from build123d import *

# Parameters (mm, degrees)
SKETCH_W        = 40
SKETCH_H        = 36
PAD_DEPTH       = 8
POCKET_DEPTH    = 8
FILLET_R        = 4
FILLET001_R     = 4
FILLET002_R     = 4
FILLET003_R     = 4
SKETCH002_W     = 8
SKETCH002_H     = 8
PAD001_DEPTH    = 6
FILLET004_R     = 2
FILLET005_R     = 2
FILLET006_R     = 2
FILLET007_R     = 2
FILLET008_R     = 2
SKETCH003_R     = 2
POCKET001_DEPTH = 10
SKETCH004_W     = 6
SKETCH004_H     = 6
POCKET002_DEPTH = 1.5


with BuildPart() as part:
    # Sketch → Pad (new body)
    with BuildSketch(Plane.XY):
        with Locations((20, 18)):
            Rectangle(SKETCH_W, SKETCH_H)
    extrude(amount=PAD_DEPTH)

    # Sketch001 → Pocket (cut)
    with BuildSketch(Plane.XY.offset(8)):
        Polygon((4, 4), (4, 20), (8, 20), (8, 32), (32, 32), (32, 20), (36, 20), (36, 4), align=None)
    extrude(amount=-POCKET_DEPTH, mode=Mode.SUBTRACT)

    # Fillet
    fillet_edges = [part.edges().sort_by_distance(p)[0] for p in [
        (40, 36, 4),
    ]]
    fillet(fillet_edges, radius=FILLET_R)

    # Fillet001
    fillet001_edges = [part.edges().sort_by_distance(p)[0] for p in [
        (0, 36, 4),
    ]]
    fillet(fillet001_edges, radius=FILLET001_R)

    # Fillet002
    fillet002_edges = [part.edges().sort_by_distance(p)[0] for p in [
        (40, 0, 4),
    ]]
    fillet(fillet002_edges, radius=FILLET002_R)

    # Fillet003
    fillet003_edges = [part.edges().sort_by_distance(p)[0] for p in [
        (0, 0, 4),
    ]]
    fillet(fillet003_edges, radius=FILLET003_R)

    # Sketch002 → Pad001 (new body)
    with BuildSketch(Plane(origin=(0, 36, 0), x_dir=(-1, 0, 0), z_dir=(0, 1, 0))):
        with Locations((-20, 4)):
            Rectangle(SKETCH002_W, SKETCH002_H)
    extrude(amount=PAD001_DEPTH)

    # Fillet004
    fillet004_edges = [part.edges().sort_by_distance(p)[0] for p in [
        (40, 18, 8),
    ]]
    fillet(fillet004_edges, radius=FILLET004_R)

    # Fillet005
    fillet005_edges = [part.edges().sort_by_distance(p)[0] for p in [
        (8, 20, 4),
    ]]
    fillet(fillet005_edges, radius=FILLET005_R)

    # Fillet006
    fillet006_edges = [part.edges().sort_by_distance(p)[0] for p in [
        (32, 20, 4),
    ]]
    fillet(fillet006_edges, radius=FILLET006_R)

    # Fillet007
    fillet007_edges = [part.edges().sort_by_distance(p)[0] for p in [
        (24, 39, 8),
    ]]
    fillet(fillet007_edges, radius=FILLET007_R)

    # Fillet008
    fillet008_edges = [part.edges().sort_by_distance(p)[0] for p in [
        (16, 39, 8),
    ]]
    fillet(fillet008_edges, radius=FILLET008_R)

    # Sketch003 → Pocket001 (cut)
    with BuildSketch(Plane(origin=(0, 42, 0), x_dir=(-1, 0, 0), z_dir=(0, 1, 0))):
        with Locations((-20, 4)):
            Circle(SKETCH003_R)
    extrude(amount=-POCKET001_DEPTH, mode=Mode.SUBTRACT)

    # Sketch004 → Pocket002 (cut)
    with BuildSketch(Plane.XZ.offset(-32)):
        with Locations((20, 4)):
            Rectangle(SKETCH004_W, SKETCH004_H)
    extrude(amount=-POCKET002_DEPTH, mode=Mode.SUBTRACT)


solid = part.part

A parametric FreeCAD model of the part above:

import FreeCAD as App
import Part
import Sketcher
Q = App.Units.Quantity


def edges_at(feature, points):
    """Names of the edges that pass closest to the given points."""
    edges = feature.Shape.Edges
    near = lambda p: min(range(len(edges)), key=lambda i: edges[i].distToShape(Part.Vertex(*p))[0])
    return sorted({f"Edge{near(p) + 1}" for p in points})


def add_polygon(sketch, points):
    """Adds a closed chain of lines whose ends are joined by coincident constraints."""
    first, n = sketch.GeometryCount, len(points)
    for a, b in zip(points, points[1:] + points[:1]):
        sketch.addGeometry(Part.LineSegment(App.Vector(*a, 0), App.Vector(*b, 0)), False)
    for i in range(n):
        sketch.addConstraint(Sketcher.Constraint("Coincident", first + i, 2, first + (i + 1) % n, 1))

doc = App.newDocument("Part")
body = doc.addObject("PartDesign::Body", "Body")

sketch1 = body.newObject("Sketcher::SketchObject", "Sketch")
sketch1.AttachmentSupport = (doc.getObject("XY_Plane"), [""])
sketch1.MapMode = "FlatFace"
add_polygon(sketch1, [(0, 36), (0, 0), (40, 0), (40, 36)])
sketch1.addConstraint([
    Sketcher.Constraint("Vertical", 0),
    Sketcher.Constraint("Horizontal", 1),
    Sketcher.Constraint("Vertical", 2),
    Sketcher.Constraint("Horizontal", 3),
    Sketcher.Constraint("Coincident", 0, 2, -1, 1),
    Sketcher.Constraint("DistanceX", 1, 1, 1, 2, Q("40 mm")),
    Sketcher.Constraint("DistanceY", 0, 2, 0, 1, Q("36 mm")),
])
pad1 = body.newObject("PartDesign::Pad", "Pad")
pad1.Profile = sketch1
pad1.Length = 8

sketch2 = body.newObject("Sketcher::SketchObject", "Sketch001")
sketch2.AttachmentSupport = (doc.getObject("XY_Plane"), [""])
sketch2.MapMode = "FlatFace"
sketch2.AttachmentOffset = App.Placement(App.Vector(0, 0, 8), App.Rotation())
add_polygon(sketch2, [(4, 20), (4, 4), (36, 4), (36, 20), (32, 20), (32, 32), (8, 32), (8, 20)])
sketch2.addConstraint([
    Sketcher.Constraint("Vertical", 0),
    Sketcher.Constraint("Horizontal", 1),
    Sketcher.Constraint("Vertical", 2),
    Sketcher.Constraint("Horizontal", 3),
    Sketcher.Constraint("Vertical", 4),
    Sketcher.Constraint("Horizontal", 5),
    Sketcher.Constraint("Vertical", 6),
    Sketcher.Constraint("Horizontal", 7),
    Sketcher.Constraint("Horizontal", 3, 2, 6, 2),
    Sketcher.Constraint("Equal", 3, 7),
    Sketcher.Constraint("DistanceX", 1, 1, 1, 2, Q("32 mm")),
    Sketcher.Constraint("DistanceX", 3, 2, 3, 1, Q("4 mm")),
    Sketcher.Constraint("DistanceY", 0, 2, 0, 1, Q("16 mm")),
    Sketcher.Constraint("DistanceY", 4, 1, 4, 2, Q("12 mm")),
    Sketcher.Constraint("DistanceX", -1, 1, 0, 2, Q("4 mm")),
    Sketcher.Constraint("DistanceY", -1, 1, 0, 2, Q("4 mm")),
])
pocket1 = body.newObject("PartDesign::Pocket", "Pocket")
pocket1.Profile = sketch2
pocket1.Length = 8
doc.recompute()

fillet = body.newObject("PartDesign::Fillet", "Fillet")
fillet.Base = (pocket1, edges_at(pocket1, [(40, 36, 4)]))
fillet.Radius = 4
doc.recompute()

fillet2 = body.newObject("PartDesign::Fillet", "Fillet001")
fillet2.Base = (fillet, edges_at(fillet, [(0, 36, 4)]))
fillet2.Radius = 4
doc.recompute()

fillet3 = body.newObject("PartDesign::Fillet", "Fillet002")
fillet3.Base = (fillet2, edges_at(fillet2, [(40, 0, 4)]))
fillet3.Radius = 4
doc.recompute()

fillet4 = body.newObject("PartDesign::Fillet", "Fillet003")
fillet4.Base = (fillet3, edges_at(fillet3, [(0, 0, 4)]))
fillet4.Radius = 4

sketch3 = body.newObject("Sketcher::SketchObject", "Sketch002")
sketch3.AttachmentSupport = (doc.getObject("XZ_Plane"), [""])
sketch3.MapMode = "FlatFace"
sketch3.AttachmentOffset = App.Placement(App.Vector(0, 0, -36), App.Rotation())
add_polygon(sketch3, [(24, 8), (24, 0), (16, 0), (16, 8)])
sketch3.addConstraint([
    Sketcher.Constraint("Vertical", 0),
    Sketcher.Constraint("Horizontal", 1),
    Sketcher.Constraint("Vertical", 2),
    Sketcher.Constraint("Horizontal", 3),
    Sketcher.Constraint("PointOnObject", 0, 2, -1),
    Sketcher.Constraint("Equal", 3, 0),
    Sketcher.Constraint("DistanceX", 1, 2, 1, 1, Q("8 mm")),
    Sketcher.Constraint("DistanceX", -1, 1, 0, 2, Q("24 mm")),
])
pad2 = body.newObject("PartDesign::Pad", "Pad001")
pad2.Profile = sketch3
pad2.Length = 6
pad2.Reversed = True
doc.recompute()

fillet5 = body.newObject("PartDesign::Fillet", "Fillet004")
fillet5.Base = (pad2, edges_at(pad2, [(40, 18, 8)]))
fillet5.Radius = 2
doc.recompute()

fillet6 = body.newObject("PartDesign::Fillet", "Fillet005")
fillet6.Base = (fillet5, edges_at(fillet5, [(8, 20, 4)]))
fillet6.Radius = 2
doc.recompute()

fillet7 = body.newObject("PartDesign::Fillet", "Fillet006")
fillet7.Base = (fillet6, edges_at(fillet6, [(32, 20, 4)]))
fillet7.Radius = 2
doc.recompute()

fillet8 = body.newObject("PartDesign::Fillet", "Fillet007")
fillet8.Base = (fillet7, edges_at(fillet7, [(24, 38, 8)]))
fillet8.Radius = 2
doc.recompute()

fillet9 = body.newObject("PartDesign::Fillet", "Fillet008")
fillet9.Base = (fillet8, edges_at(fillet8, [(16, 38, 8)]))
fillet9.Radius = 2

sketch4 = body.newObject("Sketcher::SketchObject", "Sketch003")
sketch4.AttachmentSupport = (doc.getObject("XZ_Plane"), [""])
sketch4.MapMode = "FlatFace"
sketch4.AttachmentOffset = App.Placement(App.Vector(0, 0, -42), App.Rotation())
sketch4.addGeometry(Part.Circle(App.Vector(20, 4, 0), App.Vector(0, 0, 1), 2), False)
sketch4.addConstraint([
    Sketcher.Constraint("Diameter", 0, Q("4 mm")),
    Sketcher.Constraint("DistanceX", -1, 1, 0, 3, Q("20 mm")),
    Sketcher.Constraint("DistanceY", -1, 1, 0, 3, Q("4 mm")),
])
pocket2 = body.newObject("PartDesign::Pocket", "Pocket001")
pocket2.Profile = sketch4
pocket2.Length = 10
pocket2.Reversed = True

sketch5 = body.newObject("Sketcher::SketchObject", "Sketch004")
sketch5.AttachmentSupport = (doc.getObject("XZ_Plane"), [""])
sketch5.MapMode = "FlatFace"
sketch5.AttachmentOffset = App.Placement(App.Vector(0, 0, -32), App.Rotation())
add_polygon(sketch5, [(17, 7), (17, 1), (23, 1), (23, 7)])
sketch5.addConstraint([
    Sketcher.Constraint("Vertical", 0),
    Sketcher.Constraint("Horizontal", 1),
    Sketcher.Constraint("Vertical", 2),
    Sketcher.Constraint("Horizontal", 3),
    Sketcher.Constraint("Equal", 3, 0),
    Sketcher.Constraint("DistanceX", 1, 1, 1, 2, Q("6 mm")),
    Sketcher.Constraint("DistanceX", -1, 1, 0, 2, Q("17 mm")),
    Sketcher.Constraint("DistanceY", -1, 1, 0, 2, Q("1 mm")),
])
pocket3 = body.newObject("PartDesign::Pocket", "Pocket002")
pocket3.Profile = sketch5
pocket3.Length = 1.5

doc.recompute()
